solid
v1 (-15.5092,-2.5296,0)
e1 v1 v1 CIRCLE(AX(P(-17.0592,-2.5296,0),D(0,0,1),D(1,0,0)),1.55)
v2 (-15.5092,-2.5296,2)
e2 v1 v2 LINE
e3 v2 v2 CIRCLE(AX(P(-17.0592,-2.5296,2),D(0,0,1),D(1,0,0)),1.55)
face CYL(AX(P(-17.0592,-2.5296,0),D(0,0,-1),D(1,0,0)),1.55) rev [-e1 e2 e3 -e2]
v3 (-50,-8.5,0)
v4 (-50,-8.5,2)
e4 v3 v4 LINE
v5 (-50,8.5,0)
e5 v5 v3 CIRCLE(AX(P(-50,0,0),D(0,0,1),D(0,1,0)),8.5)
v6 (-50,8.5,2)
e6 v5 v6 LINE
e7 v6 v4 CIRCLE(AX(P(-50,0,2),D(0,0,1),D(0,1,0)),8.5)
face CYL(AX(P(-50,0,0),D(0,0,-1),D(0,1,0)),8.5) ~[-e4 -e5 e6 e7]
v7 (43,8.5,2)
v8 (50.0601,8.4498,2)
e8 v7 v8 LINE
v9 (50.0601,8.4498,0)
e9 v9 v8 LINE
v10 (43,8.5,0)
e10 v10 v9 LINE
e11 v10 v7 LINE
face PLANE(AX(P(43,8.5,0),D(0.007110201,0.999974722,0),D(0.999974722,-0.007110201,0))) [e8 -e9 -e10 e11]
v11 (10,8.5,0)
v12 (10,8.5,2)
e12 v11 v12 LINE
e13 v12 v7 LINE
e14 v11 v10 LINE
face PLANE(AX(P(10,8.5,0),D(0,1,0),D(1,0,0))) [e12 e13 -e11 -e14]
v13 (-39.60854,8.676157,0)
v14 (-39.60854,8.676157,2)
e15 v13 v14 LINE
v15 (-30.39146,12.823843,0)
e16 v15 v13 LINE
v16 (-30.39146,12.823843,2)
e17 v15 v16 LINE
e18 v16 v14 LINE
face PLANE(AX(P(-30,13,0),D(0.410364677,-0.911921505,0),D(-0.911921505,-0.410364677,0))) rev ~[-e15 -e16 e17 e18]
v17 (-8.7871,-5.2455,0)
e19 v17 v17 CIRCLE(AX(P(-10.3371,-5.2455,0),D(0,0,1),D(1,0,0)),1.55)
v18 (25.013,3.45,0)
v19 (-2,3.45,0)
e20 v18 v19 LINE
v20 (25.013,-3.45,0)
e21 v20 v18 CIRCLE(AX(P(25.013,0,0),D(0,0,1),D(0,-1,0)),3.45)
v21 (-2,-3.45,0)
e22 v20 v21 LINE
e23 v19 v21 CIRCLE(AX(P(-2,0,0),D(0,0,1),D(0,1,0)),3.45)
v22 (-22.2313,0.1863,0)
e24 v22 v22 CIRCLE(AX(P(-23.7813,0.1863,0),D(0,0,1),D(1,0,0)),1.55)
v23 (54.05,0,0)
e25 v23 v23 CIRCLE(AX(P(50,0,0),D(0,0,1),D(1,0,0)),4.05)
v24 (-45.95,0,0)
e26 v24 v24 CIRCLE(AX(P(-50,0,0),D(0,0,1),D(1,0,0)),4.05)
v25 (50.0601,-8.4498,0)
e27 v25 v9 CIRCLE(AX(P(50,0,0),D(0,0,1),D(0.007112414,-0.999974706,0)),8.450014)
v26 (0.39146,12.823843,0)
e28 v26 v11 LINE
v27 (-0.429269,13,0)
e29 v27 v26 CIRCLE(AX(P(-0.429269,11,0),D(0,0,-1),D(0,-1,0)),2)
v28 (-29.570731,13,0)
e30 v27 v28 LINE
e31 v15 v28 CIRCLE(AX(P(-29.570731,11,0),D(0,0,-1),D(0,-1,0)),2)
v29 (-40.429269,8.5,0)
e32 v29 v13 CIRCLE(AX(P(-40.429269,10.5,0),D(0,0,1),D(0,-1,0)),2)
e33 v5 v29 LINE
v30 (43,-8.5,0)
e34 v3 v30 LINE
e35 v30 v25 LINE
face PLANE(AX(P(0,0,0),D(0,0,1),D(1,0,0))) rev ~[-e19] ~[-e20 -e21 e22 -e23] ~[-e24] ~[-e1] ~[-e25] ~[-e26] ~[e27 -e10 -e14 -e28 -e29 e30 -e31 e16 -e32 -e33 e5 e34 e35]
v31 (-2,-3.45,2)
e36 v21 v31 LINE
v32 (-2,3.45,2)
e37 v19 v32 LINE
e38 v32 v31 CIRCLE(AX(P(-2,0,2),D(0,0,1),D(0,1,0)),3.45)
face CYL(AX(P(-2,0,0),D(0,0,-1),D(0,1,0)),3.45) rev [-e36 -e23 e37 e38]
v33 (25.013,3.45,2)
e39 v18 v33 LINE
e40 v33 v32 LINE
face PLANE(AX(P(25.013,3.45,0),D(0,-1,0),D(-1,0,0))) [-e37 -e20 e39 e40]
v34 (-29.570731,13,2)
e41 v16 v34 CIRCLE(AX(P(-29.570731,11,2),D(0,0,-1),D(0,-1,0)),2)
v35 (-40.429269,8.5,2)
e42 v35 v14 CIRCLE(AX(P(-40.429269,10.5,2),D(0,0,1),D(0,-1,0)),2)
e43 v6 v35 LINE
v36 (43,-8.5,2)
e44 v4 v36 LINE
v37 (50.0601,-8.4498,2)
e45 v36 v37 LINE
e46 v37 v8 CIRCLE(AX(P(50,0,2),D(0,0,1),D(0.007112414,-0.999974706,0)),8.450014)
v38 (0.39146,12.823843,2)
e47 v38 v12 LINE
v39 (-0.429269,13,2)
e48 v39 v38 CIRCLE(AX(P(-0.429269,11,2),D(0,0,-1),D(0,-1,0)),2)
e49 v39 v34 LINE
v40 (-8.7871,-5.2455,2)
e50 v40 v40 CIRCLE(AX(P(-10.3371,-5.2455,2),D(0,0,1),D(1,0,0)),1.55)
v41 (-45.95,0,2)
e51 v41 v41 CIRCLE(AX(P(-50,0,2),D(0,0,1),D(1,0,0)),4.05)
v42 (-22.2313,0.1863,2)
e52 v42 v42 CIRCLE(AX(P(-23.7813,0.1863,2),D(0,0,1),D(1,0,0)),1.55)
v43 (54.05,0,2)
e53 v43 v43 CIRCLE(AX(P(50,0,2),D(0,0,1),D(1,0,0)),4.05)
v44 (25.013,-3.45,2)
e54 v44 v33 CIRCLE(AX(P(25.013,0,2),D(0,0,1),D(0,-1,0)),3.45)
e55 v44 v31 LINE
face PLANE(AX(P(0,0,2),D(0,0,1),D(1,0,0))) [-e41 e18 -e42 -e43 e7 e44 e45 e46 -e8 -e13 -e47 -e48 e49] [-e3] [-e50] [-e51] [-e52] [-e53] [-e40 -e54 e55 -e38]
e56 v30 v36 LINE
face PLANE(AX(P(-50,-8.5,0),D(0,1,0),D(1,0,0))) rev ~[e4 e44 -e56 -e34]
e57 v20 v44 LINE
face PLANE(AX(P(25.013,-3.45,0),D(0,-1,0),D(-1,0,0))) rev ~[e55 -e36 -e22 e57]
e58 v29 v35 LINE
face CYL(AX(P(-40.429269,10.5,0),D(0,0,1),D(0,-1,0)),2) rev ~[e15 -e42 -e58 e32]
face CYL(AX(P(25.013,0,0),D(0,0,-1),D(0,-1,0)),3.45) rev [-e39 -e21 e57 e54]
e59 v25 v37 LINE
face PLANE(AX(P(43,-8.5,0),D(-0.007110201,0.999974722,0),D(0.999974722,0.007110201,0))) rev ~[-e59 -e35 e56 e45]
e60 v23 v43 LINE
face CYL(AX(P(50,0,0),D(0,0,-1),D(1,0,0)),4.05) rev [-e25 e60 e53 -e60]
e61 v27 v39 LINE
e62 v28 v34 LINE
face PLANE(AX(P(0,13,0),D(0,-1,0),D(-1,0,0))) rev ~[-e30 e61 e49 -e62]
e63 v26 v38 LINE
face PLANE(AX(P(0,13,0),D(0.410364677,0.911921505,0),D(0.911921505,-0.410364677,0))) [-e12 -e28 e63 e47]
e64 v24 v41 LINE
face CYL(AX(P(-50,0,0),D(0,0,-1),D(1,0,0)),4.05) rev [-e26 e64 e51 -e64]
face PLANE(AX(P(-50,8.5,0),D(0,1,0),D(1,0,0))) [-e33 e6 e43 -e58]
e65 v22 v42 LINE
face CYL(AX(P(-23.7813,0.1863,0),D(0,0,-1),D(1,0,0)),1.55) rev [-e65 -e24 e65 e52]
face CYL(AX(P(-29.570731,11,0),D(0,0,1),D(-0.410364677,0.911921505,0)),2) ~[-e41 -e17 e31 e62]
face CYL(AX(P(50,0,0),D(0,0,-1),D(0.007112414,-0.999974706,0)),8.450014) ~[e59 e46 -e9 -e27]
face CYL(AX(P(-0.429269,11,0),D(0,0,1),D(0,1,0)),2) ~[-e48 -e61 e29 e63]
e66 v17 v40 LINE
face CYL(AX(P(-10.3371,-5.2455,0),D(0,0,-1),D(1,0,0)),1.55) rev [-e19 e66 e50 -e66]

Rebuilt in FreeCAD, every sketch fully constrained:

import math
import FreeCAD as App
import Part
import Sketcher
from FreeCAD import Vector
Q = App.Units.Quantity


def edges_at(feature, points):
    """Names of the edges that pass closest to the given points."""
    edges = feature.Shape.Edges
    near = lambda p: min(range(len(edges)), key=lambda i: edges[i].distToShape(Part.Vertex(*p))[0])
    return sorted({f"Edge{near(p) + 1}" for p in points})

doc = App.newDocument("Part")
body = doc.addObject("PartDesign::Body", "Body")

sketch1 = body.newObject("Sketcher::SketchObject", "Sketch")
sketch1.AttachmentSupport = (doc.getObject("XY_Plane"), [""])
sketch1.MapMode = "FlatFace"
sketch1.addGeometry([
    Part.LineSegment(Vector(-40, 8.5, 0), Vector(-50, 8.5, 0)),
    Part.ArcOfCircle(Part.Circle(Vector(-50, 0, 0), Vector(0, 0, 1), 8.5), math.radians(90), math.radians(270)),
    Part.LineSegment(Vector(-50, -8.5, 0), Vector(43, -8.5, 0)),
    Part.LineSegment(Vector(43, -8.5, 0), Vector(50.1, -8.4, 0)),
    Part.ArcOfCircle(Part.Circle(Vector(50, 0, 0), Vector(0, 0, 1), 8.5), math.radians(-90), math.radians(90)),
    Part.LineSegment(Vector(50.1, 8.4, 0), Vector(43, 8.5, 0)),
    Part.LineSegment(Vector(43, 8.5, 0), Vector(10, 8.5, 0)),
    Part.LineSegment(Vector(10, 8.5, 0), Vector(0, 13, 0)),
    Part.LineSegment(Vector(0, 13, 0), Vector(-30, 13, 0)),
    Part.LineSegment(Vector(-30, 13, 0), Vector(-40, 8.5, 0)),
    Part.Circle(Vector(-10.3, -5.2, 0), Vector(0, 0, 1), 1.6),
    Part.Circle(Vector(-50, 0, 0), Vector(0, 0, 1), 4),
    Part.Circle(Vector(-17.1, -2.5, 0), Vector(0, 0, 1), 1.6),
    Part.Circle(Vector(-23.8, 0.2, 0), Vector(0, 0, 1), 1.6),
    Part.ArcOfCircle(Part.Circle(Vector(25, 0, 0), Vector(0, 0, 1), 3.5), math.radians(-90), math.radians(90)),
    Part.LineSegment(Vector(25, -3.5, 0), Vector(-2, -3.5, 0)),
    Part.ArcOfCircle(Part.Circle(Vector(-2, 0, 0), Vector(0, 0, 1), 3.5), math.radians(90), math.radians(270)),
    Part.LineSegment(Vector(-2, 3.5, 0), Vector(25, 3.5, 0)),
    Part.Circle(Vector(50, 0, 0), Vector(0, 0, 1), 4),
], False)
sketch1.addConstraint([
    Sketcher.Constraint("Tangent", 0, 2, 1, 1),
    Sketcher.Constraint("Tangent", 1, 2, 2, 1),
    Sketcher.Constraint("Coincident", 2, 2, 3, 1),
    Sketcher.Constraint("Tangent", 3, 2, 4, 1),
    Sketcher.Constraint("Tangent", 4, 2, 5, 1),
    Sketcher.Constraint("Coincident", 5, 2, 6, 1),
    Sketcher.Constraint("Coincident", 6, 2, 7, 1),
    Sketcher.Constraint("Coincident", 7, 2, 8, 1),
    Sketcher.Constraint("Coincident", 8, 2, 9, 1),
    Sketcher.Constraint("Coincident", 9, 2, 0, 1),
    Sketcher.Constraint("Tangent", 14, 1, 15, 1),
    Sketcher.Constraint("Tangent", 15, 2, 16, 2),
    Sketcher.Constraint("Tangent", 16, 1, 17, 1),
    Sketcher.Constraint("Tangent", 17, 2, 14, 2),
    Sketcher.Constraint("Horizontal", 0),
    Sketcher.Constraint("Horizontal", 2),
    Sketcher.Constraint("Horizontal", 6),
    Sketcher.Constraint("Horizontal", 8),
    Sketcher.Constraint("Horizontal", 15),
    Sketcher.Constraint("Horizontal", 17),
    Sketcher.Constraint("Coincident", 11, 3, 1, 3),
    Sketcher.Constraint("Coincident", 18, 3, 4, 3),
    Sketcher.Constraint("Equal", 10, 12),
    Sketcher.Constraint("Equal", 12, 13),
    Sketcher.Constraint("Equal", 11, 18),
    Sketcher.Constraint("Symmetric", 1, 3, 4, 3, -1, 1),
    Sketcher.Constraint("Symmetric", 3, 2, 4, 2, -1),
    Sketcher.Constraint("PointOnObject", 14, 3, -1),
    Sketcher.Constraint("PointOnObject", 7, 2, -2),
    Sketcher.Constraint("Horizontal", 0, 2, 5, 2),
    Sketcher.Constraint("Equal", 7, 9),
    Sketcher.Constraint("Diameter", 10, Q("3.1 mm")),
    Sketcher.Constraint("Diameter", 11, Q("8.1 mm")),
    Sketcher.Constraint("Radius", 1, Q("8.5 mm")),
    Sketcher.Constraint("DistanceX", 0, 2, 0, 1, Q("10 mm")),
    Sketcher.Constraint("DistanceX", 8, 2, 8, 1, Q("30 mm")),
    Sketcher.Constraint("Radius", 4, Q("8.45 mm")),
    Sketcher.Constraint("Radius", 14, Q("3.45 mm")),
    Sketcher.Constraint("DistanceX", -1, 1, 6, 2, Q("10 mm")),
    Sketcher.Constraint("DistanceY", -1, 1, 7, 2, Q("13 mm")),
    Sketcher.Constraint("DistanceX", 16, 3, 18, 3, Q("52 mm")),
    Sketcher.Constraint("DistanceX", 2, 2, 4, 3, Q("7 mm")),
    Sketcher.Constraint("DistanceX", 15, 2, 15, 1, Q("27.013 mm")),
    Sketcher.Constraint("DistanceX", 10, 3, 14, 3, Q("35.35 mm")),
    Sketcher.Constraint("DistanceX", 12, 3, 10, 3, Q("6.722 mm")),
    Sketcher.Constraint("DistanceY", 10, 3, 12, 3, Q("2.716 mm")),
    Sketcher.Constraint("DistanceX", 13, 3, 12, 3, Q("6.722 mm")),
    Sketcher.Constraint("DistanceY", 12, 3, 13, 3, Q("2.716 mm")),
    Sketcher.Constraint("DistanceY", 10, 3, -1, 1, Q("5.2455 mm")),
])
pad1 = body.newObject("PartDesign::Pad", "Pad")
pad1.Profile = sketch1
pad1.Length = 2
doc.recompute()

fillet = body.newObject("PartDesign::Fillet", "Fillet")
fillet.Base = (pad1, edges_at(pad1, [
    (-40, 8.5, 1),
    (-30, 13, 1),
    (0, 13, 1),
    (43, 8.5, 1),
]))
fillet.Radius = 2

doc.recompute()
